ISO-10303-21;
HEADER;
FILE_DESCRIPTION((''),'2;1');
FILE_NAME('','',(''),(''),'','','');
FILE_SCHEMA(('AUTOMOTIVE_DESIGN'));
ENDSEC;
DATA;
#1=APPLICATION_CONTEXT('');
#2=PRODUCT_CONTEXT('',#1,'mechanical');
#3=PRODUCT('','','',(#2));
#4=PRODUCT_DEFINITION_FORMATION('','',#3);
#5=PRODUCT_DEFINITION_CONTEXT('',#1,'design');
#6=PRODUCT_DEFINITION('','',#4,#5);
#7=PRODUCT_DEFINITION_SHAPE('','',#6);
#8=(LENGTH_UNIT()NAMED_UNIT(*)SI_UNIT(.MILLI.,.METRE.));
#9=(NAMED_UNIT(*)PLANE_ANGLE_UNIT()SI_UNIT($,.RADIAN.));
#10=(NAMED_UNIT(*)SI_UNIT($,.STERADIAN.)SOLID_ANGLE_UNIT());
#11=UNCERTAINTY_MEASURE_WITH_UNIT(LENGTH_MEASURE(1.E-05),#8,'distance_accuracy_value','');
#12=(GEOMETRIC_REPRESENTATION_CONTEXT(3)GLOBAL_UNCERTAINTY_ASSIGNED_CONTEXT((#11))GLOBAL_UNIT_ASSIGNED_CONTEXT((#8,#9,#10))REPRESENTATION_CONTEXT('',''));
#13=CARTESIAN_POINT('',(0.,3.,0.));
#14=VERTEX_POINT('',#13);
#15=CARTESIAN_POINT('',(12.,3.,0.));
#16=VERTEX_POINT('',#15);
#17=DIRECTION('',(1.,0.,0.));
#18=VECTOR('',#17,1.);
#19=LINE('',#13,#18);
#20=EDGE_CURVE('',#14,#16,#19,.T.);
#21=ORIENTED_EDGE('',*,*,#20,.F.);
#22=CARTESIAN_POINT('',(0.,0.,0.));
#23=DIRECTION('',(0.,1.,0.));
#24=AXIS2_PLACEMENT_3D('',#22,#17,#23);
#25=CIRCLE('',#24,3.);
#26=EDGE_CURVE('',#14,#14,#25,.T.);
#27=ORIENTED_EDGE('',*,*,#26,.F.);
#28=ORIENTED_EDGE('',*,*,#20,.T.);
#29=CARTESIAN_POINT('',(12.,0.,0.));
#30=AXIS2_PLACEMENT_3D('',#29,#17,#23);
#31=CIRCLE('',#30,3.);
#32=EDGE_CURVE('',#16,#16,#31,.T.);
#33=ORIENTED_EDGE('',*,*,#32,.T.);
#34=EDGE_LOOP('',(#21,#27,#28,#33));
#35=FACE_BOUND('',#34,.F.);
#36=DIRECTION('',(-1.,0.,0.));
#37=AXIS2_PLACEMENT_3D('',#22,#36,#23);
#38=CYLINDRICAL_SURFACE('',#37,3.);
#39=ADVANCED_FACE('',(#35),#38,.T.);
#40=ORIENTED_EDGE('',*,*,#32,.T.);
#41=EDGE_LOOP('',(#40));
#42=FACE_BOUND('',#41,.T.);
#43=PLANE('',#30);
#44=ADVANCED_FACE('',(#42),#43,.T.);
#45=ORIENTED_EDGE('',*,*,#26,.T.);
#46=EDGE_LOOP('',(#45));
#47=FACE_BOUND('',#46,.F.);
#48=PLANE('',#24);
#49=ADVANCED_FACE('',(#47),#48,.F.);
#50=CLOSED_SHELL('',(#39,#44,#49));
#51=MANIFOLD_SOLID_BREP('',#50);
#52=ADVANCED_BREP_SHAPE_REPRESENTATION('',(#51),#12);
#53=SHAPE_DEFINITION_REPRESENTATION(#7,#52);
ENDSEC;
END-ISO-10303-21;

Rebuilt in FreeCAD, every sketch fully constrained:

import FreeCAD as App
import Part
import Sketcher
from FreeCAD import Vector

doc = App.newDocument("Part")
body = doc.addObject("PartDesign::Body", "Body")

# Sketch on YZ plane
sketch1 = body.newObject("Sketcher::SketchObject", "Sketch")
sketch1.AttachmentSupport = (doc.getObject("YZ_Plane"), [""])
sketch1.MapMode = "FlatFace"
sketch1.addGeometry(Part.Circle(Vector(0, 0, 0), Vector(0, 0, 1), 3), False)
sketch1.addConstraint(Sketcher.Constraint("Coincident", 0, 3, -1, 1))
sketch1.addConstraint(Sketcher.Constraint("Diameter", 0, 6.0))
pad1 = body.newObject("PartDesign::Pad", "Pad")
pad1.Profile = sketch1
pad1.Length = 12

doc.recompute()
